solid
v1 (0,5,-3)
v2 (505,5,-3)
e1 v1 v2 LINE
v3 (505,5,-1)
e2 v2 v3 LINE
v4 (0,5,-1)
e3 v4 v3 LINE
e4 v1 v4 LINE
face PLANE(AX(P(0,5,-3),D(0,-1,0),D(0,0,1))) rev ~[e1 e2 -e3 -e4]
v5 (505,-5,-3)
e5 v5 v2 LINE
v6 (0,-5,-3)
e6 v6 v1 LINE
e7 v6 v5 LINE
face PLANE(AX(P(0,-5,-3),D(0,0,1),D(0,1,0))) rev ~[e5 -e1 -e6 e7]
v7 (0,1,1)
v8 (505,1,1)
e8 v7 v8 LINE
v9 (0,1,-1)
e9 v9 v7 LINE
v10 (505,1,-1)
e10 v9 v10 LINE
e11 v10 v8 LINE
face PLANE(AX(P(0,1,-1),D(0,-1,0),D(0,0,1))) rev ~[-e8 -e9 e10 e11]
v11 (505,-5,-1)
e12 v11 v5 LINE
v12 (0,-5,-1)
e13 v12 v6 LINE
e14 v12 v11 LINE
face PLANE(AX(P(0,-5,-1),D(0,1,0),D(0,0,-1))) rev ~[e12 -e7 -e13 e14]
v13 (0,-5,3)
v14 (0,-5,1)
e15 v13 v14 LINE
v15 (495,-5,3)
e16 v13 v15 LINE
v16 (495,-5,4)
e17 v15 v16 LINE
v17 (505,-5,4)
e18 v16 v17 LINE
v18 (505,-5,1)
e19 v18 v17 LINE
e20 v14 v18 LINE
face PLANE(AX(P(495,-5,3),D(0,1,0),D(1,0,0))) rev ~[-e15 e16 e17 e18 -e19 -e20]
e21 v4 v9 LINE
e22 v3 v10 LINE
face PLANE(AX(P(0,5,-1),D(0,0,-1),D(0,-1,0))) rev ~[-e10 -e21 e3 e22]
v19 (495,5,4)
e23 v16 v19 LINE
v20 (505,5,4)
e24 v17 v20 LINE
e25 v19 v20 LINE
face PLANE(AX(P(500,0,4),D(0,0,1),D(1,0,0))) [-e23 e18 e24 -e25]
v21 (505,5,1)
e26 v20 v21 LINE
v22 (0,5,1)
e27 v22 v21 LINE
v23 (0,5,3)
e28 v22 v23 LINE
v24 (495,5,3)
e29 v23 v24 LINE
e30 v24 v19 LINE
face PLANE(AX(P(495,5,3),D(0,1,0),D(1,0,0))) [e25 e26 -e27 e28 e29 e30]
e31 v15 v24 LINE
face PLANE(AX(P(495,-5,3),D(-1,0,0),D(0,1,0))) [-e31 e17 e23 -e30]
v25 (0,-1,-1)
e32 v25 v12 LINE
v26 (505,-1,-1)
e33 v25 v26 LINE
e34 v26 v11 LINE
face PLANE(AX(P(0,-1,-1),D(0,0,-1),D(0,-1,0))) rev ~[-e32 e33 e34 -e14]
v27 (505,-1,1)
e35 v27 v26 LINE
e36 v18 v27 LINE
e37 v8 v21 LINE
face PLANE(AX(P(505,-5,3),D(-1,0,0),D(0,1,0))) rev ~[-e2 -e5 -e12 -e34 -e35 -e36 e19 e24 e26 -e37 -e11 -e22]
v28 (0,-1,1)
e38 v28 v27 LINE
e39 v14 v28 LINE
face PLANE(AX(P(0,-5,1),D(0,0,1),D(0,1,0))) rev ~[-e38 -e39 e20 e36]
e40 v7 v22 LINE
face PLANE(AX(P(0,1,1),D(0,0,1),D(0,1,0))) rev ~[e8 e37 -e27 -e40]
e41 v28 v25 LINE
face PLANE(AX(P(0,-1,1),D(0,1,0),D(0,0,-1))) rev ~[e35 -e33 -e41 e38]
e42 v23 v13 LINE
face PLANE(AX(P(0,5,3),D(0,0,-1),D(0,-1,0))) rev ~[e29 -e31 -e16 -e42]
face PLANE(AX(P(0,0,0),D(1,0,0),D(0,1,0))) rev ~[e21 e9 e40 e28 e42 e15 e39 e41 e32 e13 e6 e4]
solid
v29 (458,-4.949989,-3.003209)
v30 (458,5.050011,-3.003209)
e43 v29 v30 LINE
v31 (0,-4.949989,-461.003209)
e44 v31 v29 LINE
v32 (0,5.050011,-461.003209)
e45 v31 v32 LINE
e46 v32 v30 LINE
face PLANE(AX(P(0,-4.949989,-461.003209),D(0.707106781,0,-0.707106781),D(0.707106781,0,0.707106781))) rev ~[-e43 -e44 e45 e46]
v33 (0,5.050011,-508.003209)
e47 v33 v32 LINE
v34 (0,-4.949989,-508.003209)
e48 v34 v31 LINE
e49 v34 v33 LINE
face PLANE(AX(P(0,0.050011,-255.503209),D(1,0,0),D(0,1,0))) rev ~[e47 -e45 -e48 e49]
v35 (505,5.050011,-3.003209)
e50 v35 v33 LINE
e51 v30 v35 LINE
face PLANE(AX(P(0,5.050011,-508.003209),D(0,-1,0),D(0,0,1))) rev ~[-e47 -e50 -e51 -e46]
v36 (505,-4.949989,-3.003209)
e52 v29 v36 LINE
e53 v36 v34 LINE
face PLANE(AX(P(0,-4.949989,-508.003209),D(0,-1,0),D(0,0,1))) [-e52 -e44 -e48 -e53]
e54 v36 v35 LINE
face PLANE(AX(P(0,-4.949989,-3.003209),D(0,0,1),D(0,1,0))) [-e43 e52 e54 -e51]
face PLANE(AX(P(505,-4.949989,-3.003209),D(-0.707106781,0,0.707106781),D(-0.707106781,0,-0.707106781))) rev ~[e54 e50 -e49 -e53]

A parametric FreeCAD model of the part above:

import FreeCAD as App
import Part
import Sketcher
from FreeCAD import Vector

doc = App.newDocument("Part")
body = doc.addObject("PartDesign::Body", "Body")

# Sketch on YZ plane
sketch1 = body.newObject("Sketcher::SketchObject", "Sketch")
sketch1.AttachmentSupport = (doc.getObject("YZ_Plane"), [""])
sketch1.MapMode = "FlatFace"
sketch1.addGeometry([
    Part.LineSegment(Vector(-1, 1, 0), Vector(-1, -1, 0)),  # 0
    Part.LineSegment(Vector(-1, -1, 0), Vector(-5, -1, 0)),  # 1
    Part.LineSegment(Vector(-5, -1, 0), Vector(-5, -3, 0)),  # 2
    Part.LineSegment(Vector(-5, -3, 0), Vector(5, -3, 0)),  # 3
    Part.LineSegment(Vector(5, -3, 0), Vector(5, -1, 0)),  # 4
    Part.LineSegment(Vector(5, -1, 0), Vector(1, -1, 0)),  # 5
    Part.LineSegment(Vector(1, -1, 0), Vector(1, 1, 0)),  # 6
    Part.LineSegment(Vector(1, 1, 0), Vector(5, 1, 0)),  # 7
    Part.LineSegment(Vector(5, 1, 0), Vector(5, 3, 0)),  # 8
    Part.LineSegment(Vector(5, 3, 0), Vector(-5, 3, 0)),  # 9
    Part.LineSegment(Vector(-5, 3, 0), Vector(-5, 1, 0)),  # 10
    Part.LineSegment(Vector(-5, 1, 0), Vector(-1, 1, 0)),  # 11
], False)
sketch1.addConstraint([
    Sketcher.Constraint("Coincident", 0, 2, 1, 1),
    Sketcher.Constraint("Coincident", 1, 2, 2, 1),
    Sketcher.Constraint("Coincident", 2, 2, 3, 1),
    Sketcher.Constraint("Coincident", 3, 2, 4, 1),
    Sketcher.Constraint("Coincident", 4, 2, 5, 1),
    Sketcher.Constraint("Coincident", 5, 2, 6, 1),
    Sketcher.Constraint("Coincident", 6, 2, 7, 1),
    Sketcher.Constraint("Coincident", 7, 2, 8, 1),
    Sketcher.Constraint("Coincident", 8, 2, 9, 1),
    Sketcher.Constraint("Coincident", 9, 2, 10, 1),
    Sketcher.Constraint("Coincident", 10, 2, 11, 1),
    Sketcher.Constraint("Coincident", 11, 2, 0, 1),
    Sketcher.Constraint("Vertical", 0),
    Sketcher.Constraint("Horizontal", 1),
    Sketcher.Constraint("Vertical", 2),
    Sketcher.Constraint("Horizontal", 3),
    Sketcher.Constraint("Vertical", 4),
    Sketcher.Constraint("Horizontal", 5),
    Sketcher.Constraint("Vertical", 6),
    Sketcher.Constraint("Horizontal", 7),
    Sketcher.Constraint("Vertical", 8),
    Sketcher.Constraint("Horizontal", 9),
    Sketcher.Constraint("Vertical", 10),
    Sketcher.Constraint("Horizontal", 11),
    Sketcher.Constraint("Symmetric", 0, 2, 6, 2, -1, 1),
    Sketcher.Constraint("Symmetric", 2, 2, 8, 2, -1, 1),
    Sketcher.Constraint("Symmetric", 4, 2, 10, 2, -1, 1),
    Sketcher.Constraint("Symmetric", 1, 2, 4, 2, -2),
    Sketcher.Constraint("Equal", 0, 2),
    Sketcher.Constraint("DistanceX", 1, 2, 1, 1, 4.0),
    Sketcher.Constraint("DistanceX", 3, 1, 3, 2, 10.0),
    Sketcher.Constraint("DistanceY", 0, 2, 0, 1, 2.0),
])
pad1 = body.newObject("PartDesign::Pad", "Pad")
pad1.Profile = sketch1
pad1.Length = 505

# Sketch on XY plane
sketch2 = body.newObject("Sketcher::SketchObject", "Sketch001")
sketch2.AttachmentSupport = (doc.getObject("XY_Plane"), [""])
sketch2.MapMode = "FlatFace"
sketch2.AttachmentOffset = App.Placement(Vector(0, 0, 3), App.Rotation())
sketch2.addGeometry([
    Part.LineSegment(Vector(495, 5, 0), Vector(495, -5, 0)),
    Part.LineSegment(Vector(495, -5, 0), Vector(505, -5, 0)),
    Part.LineSegment(Vector(505, -5, 0), Vector(505, 5, 0)),
    Part.LineSegment(Vector(505, 5, 0), Vector(495, 5, 0)),
], False)
sketch2.addConstraint([
    Sketcher.Constraint("Coincident", 0, 2, 1, 1),
    Sketcher.Constraint("Coincident", 1, 2, 2, 1),
    Sketcher.Constraint("Coincident", 2, 2, 3, 1),
    Sketcher.Constraint("Coincident", 3, 2, 0, 1),
    Sketcher.Constraint("Vertical", 0),
    Sketcher.Constraint("Horizontal", 1),
    Sketcher.Constraint("Vertical", 2),
    Sketcher.Constraint("Horizontal", 3),
    Sketcher.Constraint("Equal", 3, 0),
    Sketcher.Constraint("DistanceX", 1, 1, 1, 2, 10.0),
    Sketcher.Constraint("DistanceX", -1, 1, 0, 2, 495.0),
    Sketcher.Constraint("DistanceY", 0, 2, -1, 1, 5.0),
])
pad2 = body.newObject("PartDesign::Pad", "Pad001")
pad2.Profile = sketch2
pad2.Length = 1
body2 = doc.addObject("PartDesign::Body", "Body001")

# Sketch on YZ plane
sketch3 = body2.newObject("Sketcher::SketchObject", "Sketch002")
sketch3.AttachmentSupport = (doc.getObject("YZ_Plane001"), [""])
sketch3.MapMode = "FlatFace"
sketch3.addGeometry([
    Part.LineSegment(Vector(-4.949989, -3.003209, 0), Vector(-4.949989, -508.003209, 0)),
    Part.LineSegment(Vector(-4.949989, -508.003209, 0), Vector(5.050011, -508.003209, 0)),
    Part.LineSegment(Vector(5.050011, -508.003209, 0), Vector(5.050011, -3.003209, 0)),
    Part.LineSegment(Vector(5.050011, -3.003209, 0), Vector(-4.949989, -3.003209, 0)),
], False)
sketch3.addConstraint([
    Sketcher.Constraint("Coincident", 0, 2, 1, 1),
    Sketcher.Constraint("Coincident", 1, 2, 2, 1),
    Sketcher.Constraint("Coincident", 2, 2, 3, 1),
    Sketcher.Constraint("Coincident", 3, 2, 0, 1),
    Sketcher.Constraint("Vertical", 0),
    Sketcher.Constraint("Horizontal", 1),
    Sketcher.Constraint("Vertical", 2),
    Sketcher.Constraint("Horizontal", 3),
    Sketcher.Constraint("DistanceX", 1, 1, 1, 2, 10.0),
    Sketcher.Constraint("DistanceY", 0, 2, 0, 1, 505.0),
    Sketcher.Constraint("DistanceX", 0, 2, -1, 1, 4.949989),
    Sketcher.Constraint("DistanceY", 0, 2, -1, 1, 508.003209),
])
pad3 = body2.newObject("PartDesign::Pad", "Pad002")
pad3.Profile = sketch3
pad3.Length = 505

# Sketch on XZ plane
sketch4 = body2.newObject("Sketcher::SketchObject", "Sketch003")
sketch4.AttachmentSupport = (doc.getObject("XZ_Plane001"), [""])
sketch4.MapMode = "FlatFace"
sketch4.AttachmentOffset = App.Placement(Vector(0, 0, 4.949989), App.Rotation())
sketch4.addGeometry([
    Part.LineSegment(Vector(458, -3.003209, 0), Vector(0, -3.003209, 0)),
    Part.LineSegment(Vector(0, -3.003209, 0), Vector(0, -461.003209, 0)),
    Part.LineSegment(Vector(0, -461.003209, 0), Vector(458, -3.003209, 0)),
], False)
sketch4.addConstraint([
    Sketcher.Constraint("Coincident", 0, 2, 1, 1),
    Sketcher.Constraint("Coincident", 1, 2, 2, 1),
    Sketcher.Constraint("Coincident", 2, 2, 0, 1),
    Sketcher.Constraint("Horizontal", 0),
    Sketcher.Constraint("Vertical", 1),
    Sketcher.Constraint("PointOnObject", 0, 2, -2),
    Sketcher.Constraint("Equal", 0, 1),
    Sketcher.Constraint("DistanceX", 0, 2, 0, 1, 458.0),
    Sketcher.Constraint("DistanceY", 0, 2, -1, 1, 3.003209),
])
pocket1 = body2.newObject("PartDesign::Pocket", "Pocket")
pocket1.Profile = sketch4
pocket1.Type = "ThroughAll"

# Sketch on XZ plane
sketch5 = body2.newObject("Sketcher::SketchObject", "Sketch004")
sketch5.AttachmentSupport = (doc.getObject("XZ_Plane001"), [""])
sketch5.MapMode = "FlatFace"
sketch5.AttachmentOffset = App.Placement(Vector(0, 0, 4.949989), App.Rotation())
sketch5.addGeometry([
    Part.LineSegment(Vector(505, -3.003209, 0), Vector(0, -508.003209, 0)),
    Part.LineSegment(Vector(0, -508.003209, 0), Vector(505, -508.003209, 0)),
    Part.LineSegment(Vector(505, -508.003209, 0), Vector(505, -3.003209, 0)),
], False)
sketch5.addConstraint([
    Sketcher.Constraint("Coincident", 0, 2, 1, 1),
    Sketcher.Constraint("Coincident", 1, 2, 2, 1),
    Sketcher.Constraint("Coincident", 2, 2, 0, 1),
    Sketcher.Constraint("Horizontal", 1),
    Sketcher.Constraint("Vertical", 2),
    Sketcher.Constraint("PointOnObject", 0, 2, -2),
    Sketcher.Constraint("Equal", 1, 2),
    Sketcher.Constraint("DistanceX", 1, 1, 1, 2, 505.0),
    Sketcher.Constraint("DistanceY", 0, 2, -1, 1, 508.003209),
])
pocket2 = body2.newObject("PartDesign::Pocket", "Pocket001")
pocket2.Profile = sketch5
pocket2.Type = "ThroughAll"

doc.recompute()
